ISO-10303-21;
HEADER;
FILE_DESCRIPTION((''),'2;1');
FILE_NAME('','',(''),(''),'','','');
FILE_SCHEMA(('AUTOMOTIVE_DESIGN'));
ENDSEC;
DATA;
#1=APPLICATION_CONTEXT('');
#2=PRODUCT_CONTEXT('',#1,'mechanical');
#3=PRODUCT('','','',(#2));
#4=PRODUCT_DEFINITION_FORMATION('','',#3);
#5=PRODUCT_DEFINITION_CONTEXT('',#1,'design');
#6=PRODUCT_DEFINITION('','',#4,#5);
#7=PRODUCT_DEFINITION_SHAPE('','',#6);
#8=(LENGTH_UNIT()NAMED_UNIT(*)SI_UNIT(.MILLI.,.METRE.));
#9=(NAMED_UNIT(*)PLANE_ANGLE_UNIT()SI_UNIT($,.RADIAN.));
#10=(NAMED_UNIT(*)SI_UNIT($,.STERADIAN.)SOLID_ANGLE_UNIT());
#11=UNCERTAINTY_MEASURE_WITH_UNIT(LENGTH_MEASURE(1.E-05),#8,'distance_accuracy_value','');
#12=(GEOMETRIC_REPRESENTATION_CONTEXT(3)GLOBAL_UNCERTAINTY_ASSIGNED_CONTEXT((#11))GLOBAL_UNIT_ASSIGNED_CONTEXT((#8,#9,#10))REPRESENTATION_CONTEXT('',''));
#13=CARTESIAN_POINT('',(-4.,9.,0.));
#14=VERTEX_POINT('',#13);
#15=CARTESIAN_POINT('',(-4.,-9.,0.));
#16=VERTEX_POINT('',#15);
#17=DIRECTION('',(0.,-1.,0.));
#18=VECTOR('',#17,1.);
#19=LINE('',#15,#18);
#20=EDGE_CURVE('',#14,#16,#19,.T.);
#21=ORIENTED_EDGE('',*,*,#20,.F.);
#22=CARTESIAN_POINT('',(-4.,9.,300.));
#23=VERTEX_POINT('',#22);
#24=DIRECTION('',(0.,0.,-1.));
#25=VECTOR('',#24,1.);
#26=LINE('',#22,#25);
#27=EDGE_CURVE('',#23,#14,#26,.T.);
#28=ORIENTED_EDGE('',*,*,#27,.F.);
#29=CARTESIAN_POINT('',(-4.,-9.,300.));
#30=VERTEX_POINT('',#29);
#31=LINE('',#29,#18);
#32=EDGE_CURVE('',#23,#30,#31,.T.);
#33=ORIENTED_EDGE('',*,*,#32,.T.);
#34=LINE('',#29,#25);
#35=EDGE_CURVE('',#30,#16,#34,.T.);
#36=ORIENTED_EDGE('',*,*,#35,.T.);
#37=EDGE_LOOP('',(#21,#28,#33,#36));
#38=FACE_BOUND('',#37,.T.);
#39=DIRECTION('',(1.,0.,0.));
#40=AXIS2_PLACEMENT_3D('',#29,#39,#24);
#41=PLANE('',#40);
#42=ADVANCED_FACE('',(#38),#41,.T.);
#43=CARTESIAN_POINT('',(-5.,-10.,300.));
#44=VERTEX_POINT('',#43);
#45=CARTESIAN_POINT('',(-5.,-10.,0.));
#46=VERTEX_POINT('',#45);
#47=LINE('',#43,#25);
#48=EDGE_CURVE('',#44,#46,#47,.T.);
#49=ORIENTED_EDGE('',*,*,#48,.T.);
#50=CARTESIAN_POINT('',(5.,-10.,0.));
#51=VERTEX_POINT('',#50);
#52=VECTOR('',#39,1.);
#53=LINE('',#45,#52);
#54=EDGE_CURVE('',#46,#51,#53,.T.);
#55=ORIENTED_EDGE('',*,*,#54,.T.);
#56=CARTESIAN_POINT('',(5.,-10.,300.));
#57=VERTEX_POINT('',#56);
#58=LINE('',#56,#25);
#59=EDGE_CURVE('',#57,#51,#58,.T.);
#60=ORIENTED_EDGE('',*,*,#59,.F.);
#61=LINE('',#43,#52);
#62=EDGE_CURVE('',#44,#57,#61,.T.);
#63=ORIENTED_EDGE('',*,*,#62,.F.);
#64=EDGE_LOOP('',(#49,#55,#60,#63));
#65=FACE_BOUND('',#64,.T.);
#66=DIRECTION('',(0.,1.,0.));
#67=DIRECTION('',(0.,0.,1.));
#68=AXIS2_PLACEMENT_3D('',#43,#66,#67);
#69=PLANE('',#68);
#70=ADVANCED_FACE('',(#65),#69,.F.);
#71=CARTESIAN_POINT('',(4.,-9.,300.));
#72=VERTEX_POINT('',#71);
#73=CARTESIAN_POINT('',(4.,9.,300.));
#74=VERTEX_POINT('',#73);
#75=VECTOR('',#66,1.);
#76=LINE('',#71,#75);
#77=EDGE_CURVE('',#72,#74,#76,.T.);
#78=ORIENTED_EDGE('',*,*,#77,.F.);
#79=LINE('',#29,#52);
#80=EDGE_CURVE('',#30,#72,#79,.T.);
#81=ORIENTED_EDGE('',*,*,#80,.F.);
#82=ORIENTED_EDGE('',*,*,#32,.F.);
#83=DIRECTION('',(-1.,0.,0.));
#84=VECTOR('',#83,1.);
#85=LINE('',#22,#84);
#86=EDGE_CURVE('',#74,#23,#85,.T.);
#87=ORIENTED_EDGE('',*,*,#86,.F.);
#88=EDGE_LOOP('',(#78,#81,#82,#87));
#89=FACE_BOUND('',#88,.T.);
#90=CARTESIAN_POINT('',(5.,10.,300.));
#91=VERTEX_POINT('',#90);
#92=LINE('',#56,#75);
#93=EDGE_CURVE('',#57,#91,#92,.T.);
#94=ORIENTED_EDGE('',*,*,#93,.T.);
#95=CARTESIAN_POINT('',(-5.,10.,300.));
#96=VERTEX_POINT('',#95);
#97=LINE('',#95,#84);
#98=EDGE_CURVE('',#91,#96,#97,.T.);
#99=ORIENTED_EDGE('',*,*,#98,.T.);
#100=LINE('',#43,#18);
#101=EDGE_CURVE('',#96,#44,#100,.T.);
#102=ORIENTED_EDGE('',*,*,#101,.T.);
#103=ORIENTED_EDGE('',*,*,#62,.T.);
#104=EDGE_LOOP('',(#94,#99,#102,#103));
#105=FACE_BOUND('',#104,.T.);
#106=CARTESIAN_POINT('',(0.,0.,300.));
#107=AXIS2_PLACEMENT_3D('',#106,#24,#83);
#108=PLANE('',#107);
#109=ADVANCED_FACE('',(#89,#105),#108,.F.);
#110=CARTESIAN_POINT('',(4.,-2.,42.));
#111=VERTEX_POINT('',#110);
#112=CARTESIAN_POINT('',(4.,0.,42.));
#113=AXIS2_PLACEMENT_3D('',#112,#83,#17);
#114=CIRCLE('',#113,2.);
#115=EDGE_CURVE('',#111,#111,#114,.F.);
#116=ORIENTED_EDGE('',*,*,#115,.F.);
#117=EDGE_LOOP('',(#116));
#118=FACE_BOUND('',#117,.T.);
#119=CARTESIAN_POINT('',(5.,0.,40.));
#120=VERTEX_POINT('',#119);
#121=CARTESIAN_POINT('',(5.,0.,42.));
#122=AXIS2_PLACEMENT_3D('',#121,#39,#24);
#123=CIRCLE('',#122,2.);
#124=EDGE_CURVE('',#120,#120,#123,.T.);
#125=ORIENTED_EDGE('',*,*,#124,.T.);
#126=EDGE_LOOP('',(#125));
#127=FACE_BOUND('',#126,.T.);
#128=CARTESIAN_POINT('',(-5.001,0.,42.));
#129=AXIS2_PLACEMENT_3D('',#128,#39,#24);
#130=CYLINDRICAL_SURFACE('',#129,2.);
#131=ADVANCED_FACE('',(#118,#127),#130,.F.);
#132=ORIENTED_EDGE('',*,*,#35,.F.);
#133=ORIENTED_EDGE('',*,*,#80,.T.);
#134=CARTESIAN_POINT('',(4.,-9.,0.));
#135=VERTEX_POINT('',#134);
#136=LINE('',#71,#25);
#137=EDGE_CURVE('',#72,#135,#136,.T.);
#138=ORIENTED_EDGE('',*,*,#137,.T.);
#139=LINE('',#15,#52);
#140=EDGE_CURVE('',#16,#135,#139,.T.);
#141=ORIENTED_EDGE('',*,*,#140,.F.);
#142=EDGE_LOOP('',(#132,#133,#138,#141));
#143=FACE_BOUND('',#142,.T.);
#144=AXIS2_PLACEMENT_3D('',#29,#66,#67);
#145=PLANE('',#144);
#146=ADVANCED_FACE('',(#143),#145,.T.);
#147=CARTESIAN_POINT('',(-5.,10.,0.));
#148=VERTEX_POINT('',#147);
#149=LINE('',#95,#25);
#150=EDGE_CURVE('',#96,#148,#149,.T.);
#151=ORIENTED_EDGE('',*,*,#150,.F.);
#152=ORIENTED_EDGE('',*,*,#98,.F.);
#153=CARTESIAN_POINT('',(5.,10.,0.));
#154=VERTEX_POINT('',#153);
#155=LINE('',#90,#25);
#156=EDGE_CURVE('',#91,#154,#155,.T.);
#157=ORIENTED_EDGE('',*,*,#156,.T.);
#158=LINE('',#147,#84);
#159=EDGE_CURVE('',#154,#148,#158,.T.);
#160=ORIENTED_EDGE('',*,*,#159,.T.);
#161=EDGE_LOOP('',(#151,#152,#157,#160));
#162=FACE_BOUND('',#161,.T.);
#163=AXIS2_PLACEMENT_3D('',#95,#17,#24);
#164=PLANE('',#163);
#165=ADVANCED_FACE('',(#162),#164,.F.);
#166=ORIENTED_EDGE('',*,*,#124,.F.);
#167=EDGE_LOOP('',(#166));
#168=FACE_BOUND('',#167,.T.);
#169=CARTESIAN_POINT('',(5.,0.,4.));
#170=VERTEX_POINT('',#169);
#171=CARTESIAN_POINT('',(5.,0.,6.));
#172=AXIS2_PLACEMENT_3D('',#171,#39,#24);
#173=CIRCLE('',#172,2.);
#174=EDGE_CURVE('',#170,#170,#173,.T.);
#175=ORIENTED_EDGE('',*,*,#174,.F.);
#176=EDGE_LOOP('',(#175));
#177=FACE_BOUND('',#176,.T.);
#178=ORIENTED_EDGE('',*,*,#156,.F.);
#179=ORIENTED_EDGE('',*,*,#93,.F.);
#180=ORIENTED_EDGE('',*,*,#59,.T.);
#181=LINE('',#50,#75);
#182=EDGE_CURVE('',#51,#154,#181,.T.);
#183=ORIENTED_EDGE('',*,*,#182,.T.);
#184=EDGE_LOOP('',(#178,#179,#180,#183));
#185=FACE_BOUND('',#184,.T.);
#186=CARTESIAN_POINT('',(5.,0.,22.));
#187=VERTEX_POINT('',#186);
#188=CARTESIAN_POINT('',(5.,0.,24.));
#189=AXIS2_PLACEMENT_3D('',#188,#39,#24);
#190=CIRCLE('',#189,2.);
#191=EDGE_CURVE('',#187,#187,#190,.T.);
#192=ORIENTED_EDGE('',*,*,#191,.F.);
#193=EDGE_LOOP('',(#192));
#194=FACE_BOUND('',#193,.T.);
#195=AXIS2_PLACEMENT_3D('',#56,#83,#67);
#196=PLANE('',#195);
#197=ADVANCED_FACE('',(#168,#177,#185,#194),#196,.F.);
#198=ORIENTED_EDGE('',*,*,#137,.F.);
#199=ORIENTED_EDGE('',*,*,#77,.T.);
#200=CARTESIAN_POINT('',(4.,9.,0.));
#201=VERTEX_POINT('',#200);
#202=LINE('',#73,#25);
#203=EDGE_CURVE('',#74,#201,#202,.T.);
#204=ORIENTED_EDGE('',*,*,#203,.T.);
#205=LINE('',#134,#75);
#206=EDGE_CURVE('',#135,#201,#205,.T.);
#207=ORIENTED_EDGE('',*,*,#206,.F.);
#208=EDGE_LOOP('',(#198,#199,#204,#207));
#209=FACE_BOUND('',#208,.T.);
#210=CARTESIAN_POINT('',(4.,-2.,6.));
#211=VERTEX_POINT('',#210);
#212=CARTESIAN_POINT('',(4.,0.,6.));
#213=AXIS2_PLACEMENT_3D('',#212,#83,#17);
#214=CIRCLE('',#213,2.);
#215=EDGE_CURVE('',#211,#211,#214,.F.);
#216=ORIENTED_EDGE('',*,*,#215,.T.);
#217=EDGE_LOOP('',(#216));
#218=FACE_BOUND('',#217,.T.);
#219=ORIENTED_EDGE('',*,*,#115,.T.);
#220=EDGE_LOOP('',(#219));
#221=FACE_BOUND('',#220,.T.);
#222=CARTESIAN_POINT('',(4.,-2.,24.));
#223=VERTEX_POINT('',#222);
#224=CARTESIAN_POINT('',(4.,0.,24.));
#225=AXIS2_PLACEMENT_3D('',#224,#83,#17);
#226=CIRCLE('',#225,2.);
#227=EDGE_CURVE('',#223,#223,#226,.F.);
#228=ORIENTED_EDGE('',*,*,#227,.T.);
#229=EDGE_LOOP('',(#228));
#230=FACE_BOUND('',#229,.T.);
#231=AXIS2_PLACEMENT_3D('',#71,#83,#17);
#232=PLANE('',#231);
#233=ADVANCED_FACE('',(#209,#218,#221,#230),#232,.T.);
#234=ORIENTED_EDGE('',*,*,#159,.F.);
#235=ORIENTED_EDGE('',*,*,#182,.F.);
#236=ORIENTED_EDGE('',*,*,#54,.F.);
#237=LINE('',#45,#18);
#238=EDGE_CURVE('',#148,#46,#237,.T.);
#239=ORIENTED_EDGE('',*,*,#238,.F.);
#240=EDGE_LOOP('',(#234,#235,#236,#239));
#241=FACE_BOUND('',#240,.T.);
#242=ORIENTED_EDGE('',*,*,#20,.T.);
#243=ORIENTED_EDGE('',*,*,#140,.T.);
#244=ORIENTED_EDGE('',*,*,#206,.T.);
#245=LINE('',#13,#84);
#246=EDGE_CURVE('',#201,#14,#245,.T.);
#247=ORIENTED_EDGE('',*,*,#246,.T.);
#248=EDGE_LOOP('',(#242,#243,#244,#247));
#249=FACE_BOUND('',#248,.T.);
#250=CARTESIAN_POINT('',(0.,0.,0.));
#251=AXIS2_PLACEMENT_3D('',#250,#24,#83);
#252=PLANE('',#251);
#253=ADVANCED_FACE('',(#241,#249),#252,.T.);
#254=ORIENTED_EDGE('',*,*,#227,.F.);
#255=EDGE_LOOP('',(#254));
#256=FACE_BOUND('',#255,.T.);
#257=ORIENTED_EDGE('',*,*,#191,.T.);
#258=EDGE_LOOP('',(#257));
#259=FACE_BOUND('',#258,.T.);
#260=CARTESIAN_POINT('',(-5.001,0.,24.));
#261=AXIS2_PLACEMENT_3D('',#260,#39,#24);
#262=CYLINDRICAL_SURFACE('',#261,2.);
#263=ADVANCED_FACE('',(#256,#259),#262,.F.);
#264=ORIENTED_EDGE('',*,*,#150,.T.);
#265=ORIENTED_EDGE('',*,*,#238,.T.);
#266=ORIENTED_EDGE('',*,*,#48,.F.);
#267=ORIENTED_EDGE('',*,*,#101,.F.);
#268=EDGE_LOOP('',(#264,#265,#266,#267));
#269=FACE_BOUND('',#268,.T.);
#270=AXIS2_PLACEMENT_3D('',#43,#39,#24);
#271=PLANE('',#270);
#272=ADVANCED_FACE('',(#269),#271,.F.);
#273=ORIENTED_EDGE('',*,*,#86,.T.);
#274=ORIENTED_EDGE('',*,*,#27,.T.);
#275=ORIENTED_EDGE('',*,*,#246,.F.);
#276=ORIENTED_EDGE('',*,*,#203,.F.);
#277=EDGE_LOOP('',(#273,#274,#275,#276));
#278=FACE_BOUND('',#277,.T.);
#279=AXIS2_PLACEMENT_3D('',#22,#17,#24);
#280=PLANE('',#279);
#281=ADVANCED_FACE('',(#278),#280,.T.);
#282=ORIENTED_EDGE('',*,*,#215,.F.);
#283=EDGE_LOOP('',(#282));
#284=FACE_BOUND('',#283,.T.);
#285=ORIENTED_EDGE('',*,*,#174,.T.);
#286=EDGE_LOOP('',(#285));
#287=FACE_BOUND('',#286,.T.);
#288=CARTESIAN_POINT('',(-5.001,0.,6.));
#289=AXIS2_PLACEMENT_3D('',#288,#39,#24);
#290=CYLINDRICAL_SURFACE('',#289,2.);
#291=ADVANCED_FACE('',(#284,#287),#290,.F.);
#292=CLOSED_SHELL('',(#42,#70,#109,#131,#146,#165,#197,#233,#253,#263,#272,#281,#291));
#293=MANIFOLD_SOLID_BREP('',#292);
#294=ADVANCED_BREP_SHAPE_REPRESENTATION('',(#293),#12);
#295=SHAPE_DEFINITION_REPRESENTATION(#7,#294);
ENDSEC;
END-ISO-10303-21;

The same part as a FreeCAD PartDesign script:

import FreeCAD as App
import Part
import Sketcher
from FreeCAD import Vector
Q = App.Units.Quantity


def add_polygon(sketch, points):
    """Adds a closed chain of lines whose ends are joined by coincident constraints."""
    first, n = sketch.GeometryCount, len(points)
    for a, b in zip(points, points[1:] + points[:1]):
        sketch.addGeometry(Part.LineSegment(App.Vector(*a, 0), App.Vector(*b, 0)), False)
    for i in range(n):
        sketch.addConstraint(Sketcher.Constraint("Coincident", first + i, 2, first + (i + 1) % n, 1))

doc = App.newDocument("Part")
params = doc.addObject("Spreadsheet::Sheet", "Params")
for row, (alias, value) in enumerate([
    ("sketch1_width", "10 mm"),
    ("sketch1_width2", "8 mm"),
    ("sketch1_height", "20 mm"),
    ("sketch1_height2", "18 mm"),
    ("pad1_length", "300 mm"),
    ("sketch2_diameter", "4 mm"),
    ("sketch3_diameter", "4 mm"),
    ("sketch4_diameter", "4 mm"),
], start=1):
    params.set(f"A{row}", alias)
    params.set(f"B{row}", "=" + value)
    params.setAlias(f"B{row}", alias)

body = doc.addObject("PartDesign::Body", "Body")

sketch1 = body.newObject("Sketcher::SketchObject", "Sketch")
sketch1.AttachmentSupport = (doc.getObject("XY_Plane"), [""])
sketch1.MapMode = "FlatFace"
add_polygon(sketch1, [(-5, 10), (-5, -10), (5, -10), (5, 10)])
add_polygon(sketch1, [(4, -9), (-4, -9), (-4, 9), (4, 9)])
sketch1.addConstraint(Sketcher.Constraint("Vertical", 0))
sketch1.addConstraint(Sketcher.Constraint("Horizontal", 1))
sketch1.addConstraint(Sketcher.Constraint("Vertical", 2))
sketch1.addConstraint(Sketcher.Constraint("Horizontal", 3))
sketch1.addConstraint(Sketcher.Constraint("Horizontal", 4))
sketch1.addConstraint(Sketcher.Constraint("Vertical", 5))
sketch1.addConstraint(Sketcher.Constraint("Horizontal", 6))
sketch1.addConstraint(Sketcher.Constraint("Vertical", 7))
sketch1.addConstraint(Sketcher.Constraint("Symmetric", 0, 2, 2, 2, -1, 1))
sketch1.addConstraint(Sketcher.Constraint("Symmetric", 4, 2, 6, 2, -1, 1))
sketch1.addConstraint(Sketcher.Constraint("DistanceX", 1, 1, 1, 2, Q("10 mm")))
sketch1.addConstraint(Sketcher.Constraint("DistanceX", 4, 2, 4, 1, Q("8 mm")))
sketch1.addConstraint(Sketcher.Constraint("DistanceY", 0, 2, 0, 1, Q("20 mm")))
sketch1.addConstraint(Sketcher.Constraint("DistanceY", 5, 1, 5, 2, Q("18 mm")))
sketch1.setExpression("Constraints[18]", "Params.sketch1_width")
sketch1.setExpression("Constraints[19]", "Params.sketch1_width2")
sketch1.setExpression("Constraints[20]", "Params.sketch1_height")
sketch1.setExpression("Constraints[21]", "Params.sketch1_height2")
pad1 = body.newObject("PartDesign::Pad", "Pad")
pad1.Profile = sketch1
pad1.setExpression("Length", "Params.pad1_length")

sketch2 = body.newObject("Sketcher::SketchObject", "Sketch001")
sketch2.AttachmentSupport = (doc.getObject("YZ_Plane"), [""])
sketch2.MapMode = "FlatFace"
sketch2.AttachmentOffset = App.Placement(Vector(0, 0, 5), App.Rotation())
sketch2.addGeometry(Part.Circle(Vector(0, 6, 0), Vector(0, 0, 1), 2), False)
sketch2.addConstraint(Sketcher.Constraint("PointOnObject", 0, 3, -2))
sketch2.addConstraint(Sketcher.Constraint("Diameter", 0, Q("4 mm")))
sketch2.addConstraint(Sketcher.Constraint("DistanceY", -1, 1, 0, 3, Q("6 mm")))
sketch2.setExpression("Constraints[1]", "Params.sketch2_diameter")
pocket1 = body.newObject("PartDesign::Pocket", "Pocket")
pocket1.Profile = sketch2
pocket1.Type = "UpToFirst"

sketch3 = body.newObject("Sketcher::SketchObject", "Sketch002")
sketch3.AttachmentSupport = (doc.getObject("YZ_Plane"), [""])
sketch3.MapMode = "FlatFace"
sketch3.AttachmentOffset = App.Placement(Vector(0, 0, 5), App.Rotation())
sketch3.addGeometry(Part.Circle(Vector(0, 24, 0), Vector(0, 0, 1), 2), False)
sketch3.addConstraint(Sketcher.Constraint("PointOnObject", 0, 3, -2))
sketch3.addConstraint(Sketcher.Constraint("Diameter", 0, Q("4 mm")))
sketch3.addConstraint(Sketcher.Constraint("DistanceY", -1, 1, 0, 3, Q("24 mm")))
sketch3.setExpression("Constraints[1]", "Params.sketch3_diameter")
pocket2 = body.newObject("PartDesign::Pocket", "Pocket001")
pocket2.Profile = sketch3
pocket2.Type = "UpToFirst"

sketch4 = body.newObject("Sketcher::SketchObject", "Sketch003")
sketch4.AttachmentSupport = (doc.getObject("YZ_Plane"), [""])
sketch4.MapMode = "FlatFace"
sketch4.AttachmentOffset = App.Placement(Vector(0, 0, 5), App.Rotation())
sketch4.addGeometry(Part.Circle(Vector(0, 42, 0), Vector(0, 0, 1), 2), False)
sketch4.addConstraint(Sketcher.Constraint("PointOnObject", 0, 3, -2))
sketch4.addConstraint(Sketcher.Constraint("Diameter", 0, Q("4 mm")))
sketch4.addConstraint(Sketcher.Constraint("DistanceY", -1, 1, 0, 3, Q("42 mm")))
sketch4.setExpression("Constraints[1]", "Params.sketch4_diameter")
pocket3 = body.newObject("PartDesign::Pocket", "Pocket002")
pocket3.Profile = sketch4
pocket3.Type = "UpToFirst"

doc.recompute()
